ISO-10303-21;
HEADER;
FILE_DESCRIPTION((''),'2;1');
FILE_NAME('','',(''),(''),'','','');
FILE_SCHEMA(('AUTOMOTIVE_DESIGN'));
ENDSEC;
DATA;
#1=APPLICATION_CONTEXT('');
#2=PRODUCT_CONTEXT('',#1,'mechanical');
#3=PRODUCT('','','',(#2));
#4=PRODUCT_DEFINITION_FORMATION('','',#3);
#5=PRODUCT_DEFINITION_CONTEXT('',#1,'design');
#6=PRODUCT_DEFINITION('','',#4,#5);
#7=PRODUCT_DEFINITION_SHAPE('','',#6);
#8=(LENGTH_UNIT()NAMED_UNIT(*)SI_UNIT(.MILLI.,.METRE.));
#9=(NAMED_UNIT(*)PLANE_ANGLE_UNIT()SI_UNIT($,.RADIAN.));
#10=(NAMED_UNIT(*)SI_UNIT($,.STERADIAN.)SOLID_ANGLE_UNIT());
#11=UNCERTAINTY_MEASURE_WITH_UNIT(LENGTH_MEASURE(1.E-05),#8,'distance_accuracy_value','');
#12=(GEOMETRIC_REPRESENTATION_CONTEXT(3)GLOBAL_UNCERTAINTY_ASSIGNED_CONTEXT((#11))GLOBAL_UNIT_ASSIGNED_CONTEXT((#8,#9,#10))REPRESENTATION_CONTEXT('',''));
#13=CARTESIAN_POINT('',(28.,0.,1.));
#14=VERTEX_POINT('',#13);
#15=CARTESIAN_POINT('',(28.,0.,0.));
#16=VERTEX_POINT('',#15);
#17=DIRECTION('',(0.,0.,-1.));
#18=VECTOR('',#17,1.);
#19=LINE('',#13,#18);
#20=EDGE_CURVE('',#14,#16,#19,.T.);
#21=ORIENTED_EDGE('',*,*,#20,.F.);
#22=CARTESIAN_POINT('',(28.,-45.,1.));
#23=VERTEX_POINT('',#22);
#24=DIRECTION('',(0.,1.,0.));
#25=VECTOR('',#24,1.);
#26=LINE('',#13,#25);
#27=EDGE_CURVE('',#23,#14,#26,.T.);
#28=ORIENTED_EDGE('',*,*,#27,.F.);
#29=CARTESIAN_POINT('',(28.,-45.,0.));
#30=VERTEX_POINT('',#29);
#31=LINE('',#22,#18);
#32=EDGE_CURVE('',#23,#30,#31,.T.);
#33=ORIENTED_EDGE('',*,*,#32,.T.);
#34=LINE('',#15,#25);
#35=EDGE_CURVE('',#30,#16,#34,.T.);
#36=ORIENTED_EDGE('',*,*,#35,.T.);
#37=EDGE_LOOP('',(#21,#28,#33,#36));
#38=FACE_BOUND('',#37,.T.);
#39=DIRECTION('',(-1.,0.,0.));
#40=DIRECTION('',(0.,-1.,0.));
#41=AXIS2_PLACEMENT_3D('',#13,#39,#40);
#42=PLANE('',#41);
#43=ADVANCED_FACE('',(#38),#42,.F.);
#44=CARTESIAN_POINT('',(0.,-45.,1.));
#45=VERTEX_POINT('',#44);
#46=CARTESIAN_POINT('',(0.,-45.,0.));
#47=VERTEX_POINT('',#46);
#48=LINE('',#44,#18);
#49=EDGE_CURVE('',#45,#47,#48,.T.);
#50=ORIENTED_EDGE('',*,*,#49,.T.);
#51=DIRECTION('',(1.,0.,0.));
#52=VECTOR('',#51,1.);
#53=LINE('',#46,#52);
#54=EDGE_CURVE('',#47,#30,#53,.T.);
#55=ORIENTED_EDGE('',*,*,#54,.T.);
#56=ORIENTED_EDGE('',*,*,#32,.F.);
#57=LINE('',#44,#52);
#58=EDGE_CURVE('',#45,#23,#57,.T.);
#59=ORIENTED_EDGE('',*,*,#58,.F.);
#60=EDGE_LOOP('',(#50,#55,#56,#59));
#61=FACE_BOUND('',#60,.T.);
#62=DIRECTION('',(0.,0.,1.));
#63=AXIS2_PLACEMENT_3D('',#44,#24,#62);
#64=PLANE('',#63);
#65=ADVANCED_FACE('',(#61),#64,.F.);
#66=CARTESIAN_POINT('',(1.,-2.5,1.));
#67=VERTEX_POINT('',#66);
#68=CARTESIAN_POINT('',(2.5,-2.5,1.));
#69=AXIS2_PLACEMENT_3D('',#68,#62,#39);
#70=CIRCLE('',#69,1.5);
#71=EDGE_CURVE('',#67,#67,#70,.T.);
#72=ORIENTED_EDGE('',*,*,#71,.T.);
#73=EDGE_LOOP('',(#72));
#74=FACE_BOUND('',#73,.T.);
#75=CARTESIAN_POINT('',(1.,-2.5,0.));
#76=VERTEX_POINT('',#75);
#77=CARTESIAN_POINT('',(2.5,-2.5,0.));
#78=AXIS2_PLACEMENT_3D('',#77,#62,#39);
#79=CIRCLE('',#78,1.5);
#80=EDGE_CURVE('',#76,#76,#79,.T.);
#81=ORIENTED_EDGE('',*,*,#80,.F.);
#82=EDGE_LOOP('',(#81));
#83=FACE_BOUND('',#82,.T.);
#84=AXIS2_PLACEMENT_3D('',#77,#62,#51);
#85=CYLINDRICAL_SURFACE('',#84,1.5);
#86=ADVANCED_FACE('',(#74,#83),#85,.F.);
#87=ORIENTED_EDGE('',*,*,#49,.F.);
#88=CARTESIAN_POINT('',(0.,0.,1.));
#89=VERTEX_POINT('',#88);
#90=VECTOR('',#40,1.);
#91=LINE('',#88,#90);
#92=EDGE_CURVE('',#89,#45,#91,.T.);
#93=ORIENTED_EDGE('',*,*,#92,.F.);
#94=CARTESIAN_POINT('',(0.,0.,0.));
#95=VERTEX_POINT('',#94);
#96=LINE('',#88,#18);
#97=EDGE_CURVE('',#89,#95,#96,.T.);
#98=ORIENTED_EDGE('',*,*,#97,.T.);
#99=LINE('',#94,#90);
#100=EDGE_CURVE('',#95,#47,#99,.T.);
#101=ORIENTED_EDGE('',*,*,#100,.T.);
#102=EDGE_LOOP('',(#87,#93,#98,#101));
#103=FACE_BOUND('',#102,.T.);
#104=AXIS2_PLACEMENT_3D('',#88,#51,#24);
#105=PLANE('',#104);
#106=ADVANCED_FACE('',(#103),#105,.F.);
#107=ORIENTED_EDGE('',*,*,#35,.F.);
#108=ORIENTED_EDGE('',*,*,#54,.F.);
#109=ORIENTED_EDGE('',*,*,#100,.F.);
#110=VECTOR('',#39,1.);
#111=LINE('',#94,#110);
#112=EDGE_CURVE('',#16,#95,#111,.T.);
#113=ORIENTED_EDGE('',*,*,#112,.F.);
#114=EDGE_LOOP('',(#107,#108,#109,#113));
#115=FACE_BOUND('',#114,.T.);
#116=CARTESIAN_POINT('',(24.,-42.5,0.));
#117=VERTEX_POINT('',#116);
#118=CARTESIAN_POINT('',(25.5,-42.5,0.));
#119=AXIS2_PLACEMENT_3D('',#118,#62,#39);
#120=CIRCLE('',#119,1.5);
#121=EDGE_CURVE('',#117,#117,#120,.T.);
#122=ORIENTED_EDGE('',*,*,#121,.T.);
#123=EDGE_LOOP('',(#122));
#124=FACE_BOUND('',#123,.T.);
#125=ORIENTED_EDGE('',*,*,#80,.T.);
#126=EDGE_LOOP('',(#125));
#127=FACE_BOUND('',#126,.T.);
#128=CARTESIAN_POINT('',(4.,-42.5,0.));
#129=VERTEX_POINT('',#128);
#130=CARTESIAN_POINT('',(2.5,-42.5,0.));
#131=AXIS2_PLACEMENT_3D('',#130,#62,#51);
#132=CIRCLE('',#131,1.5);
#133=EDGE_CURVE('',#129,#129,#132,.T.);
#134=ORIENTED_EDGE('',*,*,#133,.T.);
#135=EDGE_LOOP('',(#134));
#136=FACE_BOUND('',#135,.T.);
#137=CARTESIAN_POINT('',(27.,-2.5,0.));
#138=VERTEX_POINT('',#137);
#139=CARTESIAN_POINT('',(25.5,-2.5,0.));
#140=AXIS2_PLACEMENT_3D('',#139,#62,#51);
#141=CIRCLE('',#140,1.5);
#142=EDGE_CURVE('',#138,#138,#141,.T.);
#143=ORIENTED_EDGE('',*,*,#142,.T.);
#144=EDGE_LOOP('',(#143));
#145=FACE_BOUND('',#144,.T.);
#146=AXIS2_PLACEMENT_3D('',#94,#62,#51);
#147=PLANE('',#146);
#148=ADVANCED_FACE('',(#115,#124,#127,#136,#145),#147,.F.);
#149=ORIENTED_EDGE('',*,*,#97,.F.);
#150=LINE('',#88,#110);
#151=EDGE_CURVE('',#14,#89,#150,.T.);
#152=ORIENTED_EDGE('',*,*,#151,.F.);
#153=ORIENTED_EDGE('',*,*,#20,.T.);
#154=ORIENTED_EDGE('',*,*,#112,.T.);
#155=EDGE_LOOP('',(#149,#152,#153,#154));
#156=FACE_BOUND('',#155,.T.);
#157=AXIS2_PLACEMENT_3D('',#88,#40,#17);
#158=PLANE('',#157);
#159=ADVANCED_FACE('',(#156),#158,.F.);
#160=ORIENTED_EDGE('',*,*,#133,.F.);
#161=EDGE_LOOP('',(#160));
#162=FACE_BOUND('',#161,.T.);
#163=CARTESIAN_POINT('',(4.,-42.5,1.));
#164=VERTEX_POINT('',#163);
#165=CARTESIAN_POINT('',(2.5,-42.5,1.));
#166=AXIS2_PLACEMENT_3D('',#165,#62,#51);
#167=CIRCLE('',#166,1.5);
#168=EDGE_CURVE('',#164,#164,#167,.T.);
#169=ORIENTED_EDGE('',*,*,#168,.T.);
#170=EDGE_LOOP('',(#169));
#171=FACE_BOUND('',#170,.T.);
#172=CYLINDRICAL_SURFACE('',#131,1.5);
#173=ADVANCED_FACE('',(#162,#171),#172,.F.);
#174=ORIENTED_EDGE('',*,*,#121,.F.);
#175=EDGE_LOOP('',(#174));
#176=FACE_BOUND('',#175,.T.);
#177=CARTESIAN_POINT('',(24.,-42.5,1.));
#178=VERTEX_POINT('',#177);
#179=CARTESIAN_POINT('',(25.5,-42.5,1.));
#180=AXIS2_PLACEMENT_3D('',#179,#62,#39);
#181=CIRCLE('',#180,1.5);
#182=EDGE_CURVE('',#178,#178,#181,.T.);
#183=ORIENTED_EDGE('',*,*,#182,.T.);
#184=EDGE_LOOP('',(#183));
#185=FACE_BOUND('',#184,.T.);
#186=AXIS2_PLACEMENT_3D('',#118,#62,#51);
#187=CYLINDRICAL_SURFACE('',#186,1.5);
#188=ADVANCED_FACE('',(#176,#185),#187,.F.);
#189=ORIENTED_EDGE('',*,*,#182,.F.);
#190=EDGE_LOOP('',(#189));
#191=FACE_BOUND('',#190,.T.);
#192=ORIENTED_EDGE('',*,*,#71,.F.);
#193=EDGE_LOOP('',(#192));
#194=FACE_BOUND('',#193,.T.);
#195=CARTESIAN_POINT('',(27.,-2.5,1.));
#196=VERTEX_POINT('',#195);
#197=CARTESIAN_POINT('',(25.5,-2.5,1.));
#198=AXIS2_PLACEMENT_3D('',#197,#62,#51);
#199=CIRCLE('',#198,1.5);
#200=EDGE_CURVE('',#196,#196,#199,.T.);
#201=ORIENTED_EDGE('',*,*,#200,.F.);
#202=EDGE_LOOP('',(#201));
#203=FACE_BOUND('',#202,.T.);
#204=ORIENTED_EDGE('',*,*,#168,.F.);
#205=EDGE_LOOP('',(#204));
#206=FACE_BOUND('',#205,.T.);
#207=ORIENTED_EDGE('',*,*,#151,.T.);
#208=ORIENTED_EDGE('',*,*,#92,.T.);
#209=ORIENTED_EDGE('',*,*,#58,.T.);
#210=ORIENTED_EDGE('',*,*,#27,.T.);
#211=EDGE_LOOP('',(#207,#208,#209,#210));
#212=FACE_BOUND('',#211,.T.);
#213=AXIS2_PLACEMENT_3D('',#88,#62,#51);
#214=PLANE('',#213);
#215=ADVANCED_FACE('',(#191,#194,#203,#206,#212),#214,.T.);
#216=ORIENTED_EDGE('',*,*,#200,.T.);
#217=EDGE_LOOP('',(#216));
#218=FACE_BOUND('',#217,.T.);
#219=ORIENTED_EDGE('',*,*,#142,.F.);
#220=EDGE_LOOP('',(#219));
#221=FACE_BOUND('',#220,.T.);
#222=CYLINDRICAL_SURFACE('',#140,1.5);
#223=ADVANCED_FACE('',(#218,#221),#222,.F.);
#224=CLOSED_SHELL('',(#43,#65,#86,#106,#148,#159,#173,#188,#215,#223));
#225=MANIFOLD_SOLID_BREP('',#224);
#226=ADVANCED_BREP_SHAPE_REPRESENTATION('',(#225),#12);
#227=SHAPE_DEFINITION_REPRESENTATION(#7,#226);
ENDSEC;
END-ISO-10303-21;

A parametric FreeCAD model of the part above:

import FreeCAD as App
import Part
import Sketcher

doc = App.newDocument("Part")
body = doc.addObject("PartDesign::Body", "Body")

sketch1 = doc.addObject("Sketcher::SketchObject", "Sketch")
body.addObject(sketch1)
sketch1.AttachmentSupport = (doc.XY_Plane, [""])
sketch1.MapMode = "FlatFace"
sketch1.addGeometry(Part.LineSegment(App.Vector(0, 0, 0), App.Vector(0, -45, 0)), False)
sketch1.addGeometry(Part.LineSegment(App.Vector(0, -45, 0), App.Vector(28, -45, 0)), False)
sketch1.addGeometry(Part.LineSegment(App.Vector(28, -45, 0), App.Vector(28, 0, 0)), False)
sketch1.addGeometry(Part.LineSegment(App.Vector(28, 0, 0), App.Vector(0, 0, 0)), False)
sketch1.addConstraint(Sketcher.Constraint("Coincident", 0, 2, 1, 1))
sketch1.addConstraint(Sketcher.Constraint("Coincident", 1, 2, 2, 1))
sketch1.addConstraint(Sketcher.Constraint("Coincident", 2, 2, 3, 1))
sketch1.addConstraint(Sketcher.Constraint("Coincident", 3, 2, 0, 1))
sketch1.addConstraint(Sketcher.Constraint("Vertical", 0))
sketch1.addConstraint(Sketcher.Constraint("Horizontal", 1))
sketch1.addConstraint(Sketcher.Constraint("Vertical", 2))
sketch1.addConstraint(Sketcher.Constraint("Horizontal", 3))
sketch1.addConstraint(Sketcher.Constraint("Coincident", 3, 2, -1, 1))
sketch1.addConstraint(Sketcher.Constraint("DistanceX", 1, 1, 1, 2, 28.0))
sketch1.addConstraint(Sketcher.Constraint("DistanceY", 0, 2, 0, 1, 45.0))
pad1 = doc.addObject("PartDesign::Pad", "Pad")
body.addObject(pad1)
pad1.Profile = sketch1
pad1.Length = 1

sketch2 = doc.addObject("Sketcher::SketchObject", "Sketch001")
body.addObject(sketch2)
sketch2.AttachmentSupport = (doc.XY_Plane, [""])
sketch2.MapMode = "FlatFace"
sketch2.AttachmentOffset = App.Placement(App.Vector(0, 0, 1), App.Rotation())
sketch2.addGeometry(Part.Circle(App.Vector(2.5, -42.5, 0), App.Vector(0, 0, 1), 1.5), False)
sketch2.addGeometry(Part.Circle(App.Vector(2.5, -2.5, 0), App.Vector(0, 0, 1), 1.5), False)
sketch2.addGeometry(Part.Circle(App.Vector(25.5, -42.5, 0), App.Vector(0, 0, 1), 1.5), False)
sketch2.addGeometry(Part.Circle(App.Vector(25.5, -2.5, 0), App.Vector(0, 0, 1), 1.5), False)
sketch2.addConstraint(Sketcher.Constraint("Equal", 0, 1))
sketch2.addConstraint(Sketcher.Constraint("Equal", 1, 2))
sketch2.addConstraint(Sketcher.Constraint("Equal", 2, 3))
sketch2.addConstraint(Sketcher.Constraint("Horizontal", 0, 3, 2, 3))
sketch2.addConstraint(Sketcher.Constraint("Horizontal", 1, 3, 3, 3))
sketch2.addConstraint(Sketcher.Constraint("Vertical", 0, 3, 1, 3))
sketch2.addConstraint(Sketcher.Constraint("Vertical", 2, 3, 3, 3))
sketch2.addConstraint(Sketcher.Constraint("Diameter", 0, 3.0))
sketch2.addConstraint(Sketcher.Constraint("DistanceY", 0, 3, 1, 3, 40.0))
sketch2.addConstraint(Sketcher.Constraint("DistanceX", 0, 3, 2, 3, 23.0))
sketch2.addConstraint(Sketcher.Constraint("DistanceX", -1, 1, 0, 3, 2.5))
sketch2.addConstraint(Sketcher.Constraint("DistanceY", 0, 3, -1, 1, 42.5))
pocket1 = doc.addObject("PartDesign::Pocket", "Pocket")
body.addObject(pocket1)
pocket1.Profile = sketch2
pocket1.Type = "ThroughAll"

doc.recompute()
